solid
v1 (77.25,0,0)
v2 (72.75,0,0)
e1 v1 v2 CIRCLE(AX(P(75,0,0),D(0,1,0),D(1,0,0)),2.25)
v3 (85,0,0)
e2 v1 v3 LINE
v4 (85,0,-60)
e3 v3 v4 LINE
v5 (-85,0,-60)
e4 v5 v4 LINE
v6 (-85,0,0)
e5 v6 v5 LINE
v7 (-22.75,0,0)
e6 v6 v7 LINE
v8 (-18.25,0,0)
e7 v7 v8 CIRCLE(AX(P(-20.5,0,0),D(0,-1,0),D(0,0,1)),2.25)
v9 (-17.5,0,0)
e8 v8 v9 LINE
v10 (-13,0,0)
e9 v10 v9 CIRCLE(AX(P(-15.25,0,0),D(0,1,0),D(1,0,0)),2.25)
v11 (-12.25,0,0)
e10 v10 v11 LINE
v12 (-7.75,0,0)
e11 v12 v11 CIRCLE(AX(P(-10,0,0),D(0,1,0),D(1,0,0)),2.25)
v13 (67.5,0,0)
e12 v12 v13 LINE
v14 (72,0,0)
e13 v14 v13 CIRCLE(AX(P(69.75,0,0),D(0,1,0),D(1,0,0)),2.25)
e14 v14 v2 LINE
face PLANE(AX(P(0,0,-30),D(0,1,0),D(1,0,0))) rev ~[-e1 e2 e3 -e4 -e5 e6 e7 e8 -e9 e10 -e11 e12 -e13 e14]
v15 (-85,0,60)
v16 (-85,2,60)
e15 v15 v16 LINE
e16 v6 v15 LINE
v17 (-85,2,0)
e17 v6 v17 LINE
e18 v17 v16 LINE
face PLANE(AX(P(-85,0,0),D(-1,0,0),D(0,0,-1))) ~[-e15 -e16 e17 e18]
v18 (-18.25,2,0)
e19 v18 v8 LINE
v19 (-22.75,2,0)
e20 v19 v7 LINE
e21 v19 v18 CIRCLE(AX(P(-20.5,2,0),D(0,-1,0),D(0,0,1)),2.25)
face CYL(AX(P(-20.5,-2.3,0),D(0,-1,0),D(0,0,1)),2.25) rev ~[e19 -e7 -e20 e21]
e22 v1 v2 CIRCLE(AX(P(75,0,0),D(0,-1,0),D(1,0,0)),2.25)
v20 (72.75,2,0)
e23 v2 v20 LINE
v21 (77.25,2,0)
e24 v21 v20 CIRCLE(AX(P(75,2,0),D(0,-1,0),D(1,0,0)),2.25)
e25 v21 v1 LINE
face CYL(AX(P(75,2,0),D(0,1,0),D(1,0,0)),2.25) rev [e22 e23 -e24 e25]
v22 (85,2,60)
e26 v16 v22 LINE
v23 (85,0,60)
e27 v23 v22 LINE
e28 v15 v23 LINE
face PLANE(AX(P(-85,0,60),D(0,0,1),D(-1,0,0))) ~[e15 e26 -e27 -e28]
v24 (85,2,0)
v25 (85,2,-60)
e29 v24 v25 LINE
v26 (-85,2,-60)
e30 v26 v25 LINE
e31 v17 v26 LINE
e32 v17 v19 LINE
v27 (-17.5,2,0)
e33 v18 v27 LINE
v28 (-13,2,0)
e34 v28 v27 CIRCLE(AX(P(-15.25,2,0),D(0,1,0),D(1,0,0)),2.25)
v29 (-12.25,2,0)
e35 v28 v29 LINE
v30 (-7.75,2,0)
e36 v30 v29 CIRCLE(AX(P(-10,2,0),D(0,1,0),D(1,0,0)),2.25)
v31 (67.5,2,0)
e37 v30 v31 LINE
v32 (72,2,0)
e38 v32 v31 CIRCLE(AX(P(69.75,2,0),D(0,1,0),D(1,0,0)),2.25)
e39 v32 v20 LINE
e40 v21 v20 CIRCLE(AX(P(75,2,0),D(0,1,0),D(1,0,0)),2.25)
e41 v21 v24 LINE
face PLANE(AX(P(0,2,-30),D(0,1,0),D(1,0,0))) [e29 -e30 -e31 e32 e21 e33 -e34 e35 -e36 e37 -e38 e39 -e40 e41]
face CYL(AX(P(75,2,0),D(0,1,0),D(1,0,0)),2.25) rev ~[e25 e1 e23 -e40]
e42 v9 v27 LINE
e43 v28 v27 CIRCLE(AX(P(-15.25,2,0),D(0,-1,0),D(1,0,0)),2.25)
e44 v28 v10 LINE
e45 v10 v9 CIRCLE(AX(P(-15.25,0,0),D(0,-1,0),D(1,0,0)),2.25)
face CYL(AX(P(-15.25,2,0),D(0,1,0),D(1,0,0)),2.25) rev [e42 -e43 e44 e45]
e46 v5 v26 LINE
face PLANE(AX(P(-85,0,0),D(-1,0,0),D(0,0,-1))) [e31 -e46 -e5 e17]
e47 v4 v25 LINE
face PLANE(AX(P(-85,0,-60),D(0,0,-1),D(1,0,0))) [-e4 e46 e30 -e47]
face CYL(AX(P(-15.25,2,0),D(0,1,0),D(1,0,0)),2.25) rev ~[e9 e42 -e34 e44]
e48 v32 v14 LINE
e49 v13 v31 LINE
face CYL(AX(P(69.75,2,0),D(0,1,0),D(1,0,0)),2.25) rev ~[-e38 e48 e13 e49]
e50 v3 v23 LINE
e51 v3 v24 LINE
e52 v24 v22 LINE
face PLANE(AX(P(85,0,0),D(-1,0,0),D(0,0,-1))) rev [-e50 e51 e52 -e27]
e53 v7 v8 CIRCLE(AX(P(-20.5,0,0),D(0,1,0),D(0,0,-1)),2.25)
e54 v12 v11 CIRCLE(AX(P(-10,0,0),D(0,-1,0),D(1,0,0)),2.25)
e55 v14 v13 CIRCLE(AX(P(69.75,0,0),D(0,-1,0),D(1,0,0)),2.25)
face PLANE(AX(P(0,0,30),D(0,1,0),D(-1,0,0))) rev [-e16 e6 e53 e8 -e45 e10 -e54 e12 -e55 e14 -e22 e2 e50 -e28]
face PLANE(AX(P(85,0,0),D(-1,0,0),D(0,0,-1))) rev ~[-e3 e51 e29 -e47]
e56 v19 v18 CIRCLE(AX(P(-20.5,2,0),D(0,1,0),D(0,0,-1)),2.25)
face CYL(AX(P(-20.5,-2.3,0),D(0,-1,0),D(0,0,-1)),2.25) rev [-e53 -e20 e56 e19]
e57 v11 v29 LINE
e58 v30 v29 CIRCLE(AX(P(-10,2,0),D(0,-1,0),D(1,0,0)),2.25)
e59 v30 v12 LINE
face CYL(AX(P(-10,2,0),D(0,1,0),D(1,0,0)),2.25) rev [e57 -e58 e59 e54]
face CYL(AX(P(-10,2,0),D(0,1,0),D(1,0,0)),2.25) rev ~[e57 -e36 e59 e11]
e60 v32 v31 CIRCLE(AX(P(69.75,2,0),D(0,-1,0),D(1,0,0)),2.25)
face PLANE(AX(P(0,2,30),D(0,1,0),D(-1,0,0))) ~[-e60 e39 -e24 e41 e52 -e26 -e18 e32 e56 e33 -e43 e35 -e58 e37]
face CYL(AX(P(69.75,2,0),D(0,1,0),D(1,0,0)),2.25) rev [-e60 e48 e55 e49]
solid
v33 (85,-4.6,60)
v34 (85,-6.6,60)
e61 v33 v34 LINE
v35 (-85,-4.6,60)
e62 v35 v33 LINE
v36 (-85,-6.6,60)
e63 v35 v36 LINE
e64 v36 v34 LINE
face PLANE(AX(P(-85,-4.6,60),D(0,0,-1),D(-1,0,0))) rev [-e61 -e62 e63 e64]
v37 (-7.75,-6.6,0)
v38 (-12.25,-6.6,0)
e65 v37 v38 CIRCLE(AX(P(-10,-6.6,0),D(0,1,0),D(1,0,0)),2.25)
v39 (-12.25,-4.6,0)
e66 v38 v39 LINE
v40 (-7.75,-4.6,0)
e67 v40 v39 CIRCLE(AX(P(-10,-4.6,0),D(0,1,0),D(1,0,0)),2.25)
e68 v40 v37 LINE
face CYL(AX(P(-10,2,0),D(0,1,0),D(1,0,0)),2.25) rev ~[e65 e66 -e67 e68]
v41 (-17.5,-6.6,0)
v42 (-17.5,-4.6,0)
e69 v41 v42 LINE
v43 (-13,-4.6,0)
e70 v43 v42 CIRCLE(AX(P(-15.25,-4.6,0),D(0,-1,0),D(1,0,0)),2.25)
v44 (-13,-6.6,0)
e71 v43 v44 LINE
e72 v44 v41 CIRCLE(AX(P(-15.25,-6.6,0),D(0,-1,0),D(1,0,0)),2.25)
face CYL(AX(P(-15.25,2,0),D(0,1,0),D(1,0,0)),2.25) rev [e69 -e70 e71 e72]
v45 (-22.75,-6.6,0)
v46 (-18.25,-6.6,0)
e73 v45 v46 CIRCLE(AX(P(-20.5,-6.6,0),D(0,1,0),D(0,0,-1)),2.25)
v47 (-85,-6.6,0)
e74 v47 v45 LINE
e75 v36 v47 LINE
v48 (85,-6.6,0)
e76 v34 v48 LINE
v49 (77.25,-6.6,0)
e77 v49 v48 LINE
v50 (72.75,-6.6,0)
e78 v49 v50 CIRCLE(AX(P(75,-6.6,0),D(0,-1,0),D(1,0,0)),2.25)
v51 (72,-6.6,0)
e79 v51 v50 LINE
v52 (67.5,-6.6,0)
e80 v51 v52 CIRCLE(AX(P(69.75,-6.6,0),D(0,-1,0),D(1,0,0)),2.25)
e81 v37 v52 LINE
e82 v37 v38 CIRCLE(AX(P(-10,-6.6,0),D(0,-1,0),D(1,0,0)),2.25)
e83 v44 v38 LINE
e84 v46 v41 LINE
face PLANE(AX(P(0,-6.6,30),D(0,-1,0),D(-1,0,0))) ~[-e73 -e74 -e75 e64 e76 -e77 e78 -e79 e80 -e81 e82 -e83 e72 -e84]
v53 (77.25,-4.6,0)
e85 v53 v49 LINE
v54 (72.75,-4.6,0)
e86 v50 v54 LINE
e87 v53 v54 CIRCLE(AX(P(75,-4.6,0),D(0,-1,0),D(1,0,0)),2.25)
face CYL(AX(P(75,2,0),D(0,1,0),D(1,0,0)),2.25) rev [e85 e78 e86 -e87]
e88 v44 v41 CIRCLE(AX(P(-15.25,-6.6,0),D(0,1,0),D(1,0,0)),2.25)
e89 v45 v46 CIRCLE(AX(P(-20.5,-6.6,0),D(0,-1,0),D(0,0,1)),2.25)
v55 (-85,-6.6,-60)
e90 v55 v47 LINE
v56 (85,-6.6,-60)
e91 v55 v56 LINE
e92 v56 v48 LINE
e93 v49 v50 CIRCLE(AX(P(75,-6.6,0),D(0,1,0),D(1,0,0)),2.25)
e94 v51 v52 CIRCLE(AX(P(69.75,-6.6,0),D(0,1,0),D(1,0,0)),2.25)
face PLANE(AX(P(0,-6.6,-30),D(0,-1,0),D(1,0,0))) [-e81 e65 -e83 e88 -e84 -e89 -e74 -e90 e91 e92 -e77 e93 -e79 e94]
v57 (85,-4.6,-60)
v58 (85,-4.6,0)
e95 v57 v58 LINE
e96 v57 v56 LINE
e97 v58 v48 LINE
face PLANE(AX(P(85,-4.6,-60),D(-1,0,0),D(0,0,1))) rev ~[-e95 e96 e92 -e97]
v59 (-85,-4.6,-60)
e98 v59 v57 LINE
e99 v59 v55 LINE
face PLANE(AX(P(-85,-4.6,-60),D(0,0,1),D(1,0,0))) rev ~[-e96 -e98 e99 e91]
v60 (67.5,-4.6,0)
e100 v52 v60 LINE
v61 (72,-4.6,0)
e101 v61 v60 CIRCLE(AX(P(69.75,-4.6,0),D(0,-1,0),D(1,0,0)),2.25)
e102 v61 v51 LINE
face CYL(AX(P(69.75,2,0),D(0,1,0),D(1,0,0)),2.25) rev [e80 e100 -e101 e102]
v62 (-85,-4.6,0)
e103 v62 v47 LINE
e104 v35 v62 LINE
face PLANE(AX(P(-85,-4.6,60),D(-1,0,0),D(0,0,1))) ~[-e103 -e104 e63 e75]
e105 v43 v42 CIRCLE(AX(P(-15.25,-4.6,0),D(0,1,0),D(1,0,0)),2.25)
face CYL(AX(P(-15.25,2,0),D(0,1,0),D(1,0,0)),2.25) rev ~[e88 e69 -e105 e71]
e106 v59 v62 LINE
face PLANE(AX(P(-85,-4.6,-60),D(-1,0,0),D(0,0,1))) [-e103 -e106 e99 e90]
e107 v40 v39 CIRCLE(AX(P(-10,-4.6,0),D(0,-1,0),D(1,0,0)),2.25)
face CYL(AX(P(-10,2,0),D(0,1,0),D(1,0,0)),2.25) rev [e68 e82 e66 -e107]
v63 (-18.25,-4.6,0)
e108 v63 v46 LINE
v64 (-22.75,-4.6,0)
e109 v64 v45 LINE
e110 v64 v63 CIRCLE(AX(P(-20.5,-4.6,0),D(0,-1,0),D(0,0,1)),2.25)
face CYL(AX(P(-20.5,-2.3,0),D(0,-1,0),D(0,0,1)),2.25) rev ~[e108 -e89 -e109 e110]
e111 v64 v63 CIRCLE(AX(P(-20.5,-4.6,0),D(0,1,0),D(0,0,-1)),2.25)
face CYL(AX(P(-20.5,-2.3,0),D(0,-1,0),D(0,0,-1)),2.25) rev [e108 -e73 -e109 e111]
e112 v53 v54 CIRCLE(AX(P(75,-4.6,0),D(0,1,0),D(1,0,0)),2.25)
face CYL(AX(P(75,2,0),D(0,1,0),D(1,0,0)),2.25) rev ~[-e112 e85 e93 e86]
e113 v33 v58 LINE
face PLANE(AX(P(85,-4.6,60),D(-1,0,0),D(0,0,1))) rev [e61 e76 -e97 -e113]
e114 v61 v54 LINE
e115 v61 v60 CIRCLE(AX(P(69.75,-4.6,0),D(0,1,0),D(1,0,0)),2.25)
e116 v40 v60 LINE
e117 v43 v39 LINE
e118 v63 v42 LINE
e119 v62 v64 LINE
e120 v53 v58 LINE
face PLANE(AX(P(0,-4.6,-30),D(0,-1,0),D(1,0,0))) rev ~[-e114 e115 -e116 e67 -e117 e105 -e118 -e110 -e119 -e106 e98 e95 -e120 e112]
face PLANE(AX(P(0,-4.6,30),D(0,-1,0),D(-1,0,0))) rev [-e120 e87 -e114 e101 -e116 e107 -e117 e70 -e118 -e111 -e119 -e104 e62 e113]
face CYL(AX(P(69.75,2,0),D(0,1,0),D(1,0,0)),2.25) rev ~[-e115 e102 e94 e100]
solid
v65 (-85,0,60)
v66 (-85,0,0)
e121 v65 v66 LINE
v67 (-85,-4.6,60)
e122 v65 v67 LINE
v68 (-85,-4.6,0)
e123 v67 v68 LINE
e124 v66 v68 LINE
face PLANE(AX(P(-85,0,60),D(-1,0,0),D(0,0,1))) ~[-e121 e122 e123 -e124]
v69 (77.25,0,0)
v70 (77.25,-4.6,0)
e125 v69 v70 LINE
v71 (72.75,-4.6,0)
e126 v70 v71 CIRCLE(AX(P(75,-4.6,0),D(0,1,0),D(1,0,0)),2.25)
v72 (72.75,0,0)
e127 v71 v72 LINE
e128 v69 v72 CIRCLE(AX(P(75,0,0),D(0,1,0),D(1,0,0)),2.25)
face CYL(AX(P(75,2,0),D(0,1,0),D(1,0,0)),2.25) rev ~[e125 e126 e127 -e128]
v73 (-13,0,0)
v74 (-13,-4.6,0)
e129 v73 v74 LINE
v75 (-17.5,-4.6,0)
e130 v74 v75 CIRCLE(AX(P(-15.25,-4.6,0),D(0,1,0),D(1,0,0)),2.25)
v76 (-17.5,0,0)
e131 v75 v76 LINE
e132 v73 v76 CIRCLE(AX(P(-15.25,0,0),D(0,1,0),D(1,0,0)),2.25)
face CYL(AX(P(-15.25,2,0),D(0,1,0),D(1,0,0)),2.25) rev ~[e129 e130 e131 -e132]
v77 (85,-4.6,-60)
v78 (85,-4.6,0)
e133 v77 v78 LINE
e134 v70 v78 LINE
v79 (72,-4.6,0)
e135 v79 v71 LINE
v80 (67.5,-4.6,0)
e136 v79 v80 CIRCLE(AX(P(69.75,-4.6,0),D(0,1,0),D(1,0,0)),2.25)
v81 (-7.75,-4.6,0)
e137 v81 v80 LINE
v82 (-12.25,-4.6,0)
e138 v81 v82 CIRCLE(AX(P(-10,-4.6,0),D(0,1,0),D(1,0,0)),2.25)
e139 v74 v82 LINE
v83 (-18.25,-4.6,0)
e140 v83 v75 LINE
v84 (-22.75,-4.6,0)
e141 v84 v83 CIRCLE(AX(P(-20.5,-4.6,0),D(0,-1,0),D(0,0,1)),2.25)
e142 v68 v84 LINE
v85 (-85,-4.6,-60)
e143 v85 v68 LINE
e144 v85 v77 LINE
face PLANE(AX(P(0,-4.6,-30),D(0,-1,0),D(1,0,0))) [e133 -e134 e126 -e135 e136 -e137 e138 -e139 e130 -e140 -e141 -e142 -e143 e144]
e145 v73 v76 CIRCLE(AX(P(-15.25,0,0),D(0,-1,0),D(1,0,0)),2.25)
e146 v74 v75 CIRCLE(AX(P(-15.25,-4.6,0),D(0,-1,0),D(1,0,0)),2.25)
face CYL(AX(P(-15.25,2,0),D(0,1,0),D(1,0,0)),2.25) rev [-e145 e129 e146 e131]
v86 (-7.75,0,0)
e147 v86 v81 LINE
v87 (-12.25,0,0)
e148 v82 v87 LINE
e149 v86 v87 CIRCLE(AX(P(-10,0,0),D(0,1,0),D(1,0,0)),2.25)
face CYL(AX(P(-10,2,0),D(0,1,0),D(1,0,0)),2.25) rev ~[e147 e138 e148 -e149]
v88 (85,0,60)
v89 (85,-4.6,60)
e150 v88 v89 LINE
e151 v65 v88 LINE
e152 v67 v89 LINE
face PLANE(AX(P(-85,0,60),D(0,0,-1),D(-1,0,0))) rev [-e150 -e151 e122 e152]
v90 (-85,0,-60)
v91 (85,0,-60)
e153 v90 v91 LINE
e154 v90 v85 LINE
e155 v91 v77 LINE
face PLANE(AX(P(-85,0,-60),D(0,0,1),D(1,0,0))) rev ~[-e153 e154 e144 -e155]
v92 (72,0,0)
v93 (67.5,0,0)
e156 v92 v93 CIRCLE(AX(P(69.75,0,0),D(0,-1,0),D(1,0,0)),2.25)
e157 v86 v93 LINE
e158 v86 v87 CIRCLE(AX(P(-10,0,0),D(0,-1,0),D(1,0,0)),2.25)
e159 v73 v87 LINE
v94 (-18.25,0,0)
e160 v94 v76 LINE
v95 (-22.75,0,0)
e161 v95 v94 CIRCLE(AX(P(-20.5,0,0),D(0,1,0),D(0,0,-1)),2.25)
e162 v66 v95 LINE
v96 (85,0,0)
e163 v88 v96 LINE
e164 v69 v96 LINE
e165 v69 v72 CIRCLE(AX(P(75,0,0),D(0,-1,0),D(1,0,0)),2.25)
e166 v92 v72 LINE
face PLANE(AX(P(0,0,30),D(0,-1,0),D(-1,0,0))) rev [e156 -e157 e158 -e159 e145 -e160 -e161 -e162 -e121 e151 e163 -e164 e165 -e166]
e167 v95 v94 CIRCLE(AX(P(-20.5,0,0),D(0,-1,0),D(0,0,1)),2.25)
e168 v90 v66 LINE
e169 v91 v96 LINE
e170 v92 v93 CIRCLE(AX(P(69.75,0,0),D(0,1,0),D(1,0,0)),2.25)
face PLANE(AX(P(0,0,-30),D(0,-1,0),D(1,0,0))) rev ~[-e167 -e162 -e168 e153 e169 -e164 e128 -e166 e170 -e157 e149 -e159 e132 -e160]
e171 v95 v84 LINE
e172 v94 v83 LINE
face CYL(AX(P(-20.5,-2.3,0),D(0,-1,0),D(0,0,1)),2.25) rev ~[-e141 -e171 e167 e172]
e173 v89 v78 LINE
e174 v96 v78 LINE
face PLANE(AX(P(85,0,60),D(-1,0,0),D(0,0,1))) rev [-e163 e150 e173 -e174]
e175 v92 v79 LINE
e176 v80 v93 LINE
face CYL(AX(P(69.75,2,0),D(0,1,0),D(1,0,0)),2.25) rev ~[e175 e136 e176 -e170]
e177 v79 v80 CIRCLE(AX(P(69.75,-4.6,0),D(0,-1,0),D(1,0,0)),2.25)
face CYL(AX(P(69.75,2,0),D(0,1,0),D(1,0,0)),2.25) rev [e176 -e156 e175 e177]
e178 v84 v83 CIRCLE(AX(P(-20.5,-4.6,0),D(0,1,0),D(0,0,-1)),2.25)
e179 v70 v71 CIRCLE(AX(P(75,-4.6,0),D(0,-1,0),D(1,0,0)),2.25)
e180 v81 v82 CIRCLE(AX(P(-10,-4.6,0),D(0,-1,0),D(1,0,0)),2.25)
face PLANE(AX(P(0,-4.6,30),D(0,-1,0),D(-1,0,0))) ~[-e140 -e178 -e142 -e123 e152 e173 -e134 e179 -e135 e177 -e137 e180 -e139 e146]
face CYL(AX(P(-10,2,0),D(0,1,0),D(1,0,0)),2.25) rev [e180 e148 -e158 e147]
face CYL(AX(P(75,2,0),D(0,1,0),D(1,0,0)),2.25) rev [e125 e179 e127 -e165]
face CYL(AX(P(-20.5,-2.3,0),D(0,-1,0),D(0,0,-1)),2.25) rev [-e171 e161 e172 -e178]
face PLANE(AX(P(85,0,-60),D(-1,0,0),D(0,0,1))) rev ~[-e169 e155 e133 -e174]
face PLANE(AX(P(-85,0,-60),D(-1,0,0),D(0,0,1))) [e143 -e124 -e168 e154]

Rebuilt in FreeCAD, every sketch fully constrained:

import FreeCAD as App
import Part
import Sketcher

V = App.Vector

doc = App.newDocument("Part")
body = doc.addObject("PartDesign::Body", "Body")

sketch1 = body.newObject("Sketcher::SketchObject", "Sketch")
sketch1.AttachmentSupport = (doc.getObject("XZ_Plane"), [""])
sketch1.MapMode = "FlatFace"
sketch1.addGeometry([
    Part.LineSegment(V(-85, -60, 0), V(-85, 0, 0)),
    Part.LineSegment(V(-85, 0, 0), V(85, 0, 0)),
    Part.LineSegment(V(85, 0, 0), V(85, -60, 0)),
    Part.LineSegment(V(85, -60, 0), V(-85, -60, 0)),
], False)
sketch1.addConstraint([
    Sketcher.Constraint("Coincident", 0, 2, 1, 1),
    Sketcher.Constraint("Coincident", 1, 2, 2, 1),
    Sketcher.Constraint("Coincident", 2, 2, 3, 1),
    Sketcher.Constraint("Coincident", 3, 2, 0, 1),
    Sketcher.Constraint("Vertical", 0),
    Sketcher.Constraint("Horizontal", 1),
    Sketcher.Constraint("Vertical", 2),
    Sketcher.Constraint("Horizontal", 3),
    Sketcher.Constraint("Symmetric", 0, 2, 1, 2, -1, 1),
    Sketcher.Constraint("DistanceX", 1, 1, 1, 2, 170.0),
    Sketcher.Constraint("DistanceY", 0, 1, 0, 2, 60.0),
])
pad1 = body.newObject("PartDesign::Pad", "Pad")
pad1.Profile = sketch1
pad1.Length = 2
pad1.Reversed = True
body2 = doc.addObject("PartDesign::Body", "Body001")

sketch2 = body2.newObject("Sketcher::SketchObject", "Sketch001")
sketch2.AttachmentSupport = (doc.getObject("XZ_Plane001"), [""])
sketch2.MapMode = "FlatFace"
sketch2.addGeometry([
    Part.LineSegment(V(-85, 0, 0), V(-85, -60, 0)),
    Part.LineSegment(V(-85, -60, 0), V(85, -60, 0)),
    Part.LineSegment(V(85, -60, 0), V(85, 0, 0)),
    Part.LineSegment(V(85, 0, 0), V(-85, 0, 0)),
], False)
sketch2.addConstraint([
    Sketcher.Constraint("Coincident", 0, 2, 1, 1),
    Sketcher.Constraint("Coincident", 1, 2, 2, 1),
    Sketcher.Constraint("Coincident", 2, 2, 3, 1),
    Sketcher.Constraint("Coincident", 3, 2, 0, 1),
    Sketcher.Constraint("Vertical", 0),
    Sketcher.Constraint("Horizontal", 1),
    Sketcher.Constraint("Vertical", 2),
    Sketcher.Constraint("Horizontal", 3),
    Sketcher.Constraint("Symmetric", 2, 2, 3, 2, -1, 1),
    Sketcher.Constraint("DistanceX", 1, 1, 1, 2, 170.0),
    Sketcher.Constraint("DistanceY", 0, 2, 0, 1, 60.0),
])
pad2 = body2.newObject("PartDesign::Pad", "Pad001")
pad2.Profile = sketch2
pad2.Length = 4.6
body3 = doc.addObject("PartDesign::Body", "Body002")

sketch3 = body3.newObject("Sketcher::SketchObject", "Sketch002")
sketch3.AttachmentSupport = (doc.getObject("XZ_Plane002"), [""])
sketch3.MapMode = "FlatFace"
sketch3.AttachmentOffset = App.Placement(V(0, 0, 4.6), App.Rotation())
sketch3.addGeometry([
    Part.LineSegment(V(-85, 0, 0), V(-85, -60, 0)),
    Part.LineSegment(V(-85, -60, 0), V(85, -60, 0)),
    Part.LineSegment(V(85, -60, 0), V(85, 0, 0)),
    Part.LineSegment(V(85, 0, 0), V(-85, 0, 0)),
], False)
sketch3.addConstraint([
    Sketcher.Constraint("Coincident", 0, 2, 1, 1),
    Sketcher.Constraint("Coincident", 1, 2, 2, 1),
    Sketcher.Constraint("Coincident", 2, 2, 3, 1),
    Sketcher.Constraint("Coincident", 3, 2, 0, 1),
    Sketcher.Constraint("Vertical", 0),
    Sketcher.Constraint("Horizontal", 1),
    Sketcher.Constraint("Vertical", 2),
    Sketcher.Constraint("Horizontal", 3),
    Sketcher.Constraint("Symmetric", 2, 2, 3, 2, -1, 1),
    Sketcher.Constraint("DistanceX", 1, 1, 1, 2, 170.0),
    Sketcher.Constraint("DistanceY", 0, 2, 0, 1, 60.0),
])
pad3 = body3.newObject("PartDesign::Pad", "Pad002")
pad3.Profile = sketch3
pad3.Length = 2
body4 = doc.addObject("PartDesign::Body", "Body003")
body4.AllowCompound = True

sketch4 = body4.newObject("Sketcher::SketchObject", "Sketch003")
sketch4.AttachmentSupport = (doc.getObject("XZ_Plane003"), [""])
sketch4.MapMode = "FlatFace"
sketch4.AttachmentOffset = App.Placement(V(0, 0, -2), App.Rotation())
sketch4.addGeometry([
    Part.Circle(V(75, 0, 0), V(0, 0, 1), 2.25),
    Part.Circle(V(-10, 0, 0), V(0, 0, 1), 2.25),
    Part.Circle(V(69.75, 0, 0), V(0, 0, 1), 2.25),
    Part.Circle(V(-15.25, 0, 0), V(0, 0, 1), 2.25),
], False)
sketch4.addConstraint([
    Sketcher.Constraint("Equal", 0, 1),
    Sketcher.Constraint("Equal", 1, 2),
    Sketcher.Constraint("Equal", 2, 3),
    Sketcher.Constraint("PointOnObject", 0, 3, -1),
    Sketcher.Constraint("PointOnObject", 1, 3, -1),
    Sketcher.Constraint("PointOnObject", 2, 3, -1),
    Sketcher.Constraint("PointOnObject", 3, 3, -1),
    Sketcher.Constraint("Diameter", 0, 4.5),
    Sketcher.Constraint("DistanceX", -1, 1, 0, 3, 75.0),
    Sketcher.Constraint("DistanceX", 1, 3, -1, 1, 10.0),
    Sketcher.Constraint("DistanceX", 3, 3, 2, 3, 85.0),
    Sketcher.Constraint("DistanceX", -1, 1, 2, 3, 69.75),
])
pad4 = body4.newObject("PartDesign::Pad", "Pad003")
pad4.Profile = sketch4
pad4.Length = 105.398084
doc.recompute()

body5 = doc.addObject("PartDesign::Body", "Body004")
body5.BaseFeature = body4
boolean = body.newObject("PartDesign::Boolean", "Boolean")
boolean.Type = "Cut"
boolean.addObjects([body5])
doc.recompute()

body6 = doc.addObject("PartDesign::Body", "Body005")
body6.BaseFeature = body4
boolean2 = body2.newObject("PartDesign::Boolean", "Boolean001")
boolean2.Type = "Cut"
boolean2.addObjects([body6])
doc.recompute()

boolean3 = body3.newObject("PartDesign::Boolean", "Boolean002")
boolean3.Type = "Cut"
boolean3.addObjects([body4])
body7 = doc.addObject("PartDesign::Body", "Body006")

sketch5 = body7.newObject("Sketcher::SketchObject", "Sketch004")
sketch5.AttachmentSupport = (doc.getObject("YZ_Plane006"), [""])
sketch5.MapMode = "FlatFace"
sketch5.AttachmentOffset = App.Placement(V(0, 0, -20.5), App.Rotation())
sketch5.addGeometry([
    Part.LineSegment(V(-6.6, 0, 0), V(2, 0, 0)),
    Part.LineSegment(V(2, 0, 0), V(2, 2.25, 0)),
    Part.LineSegment(V(2, 2.25, 0), V(-6.6, 2.25, 0)),
    Part.LineSegment(V(-6.6, 2.25, 0), V(-6.6, 0, 0)),
], False)
sketch5.addConstraint([
    Sketcher.Constraint("Coincident", 0, 2, 1, 1),
    Sketcher.Constraint("Coincident", 1, 2, 2, 1),
    Sketcher.Constraint("Coincident", 2, 2, 3, 1),
    Sketcher.Constraint("Coincident", 3, 2, 0, 1),
    Sketcher.Constraint("Horizontal", 0),
    Sketcher.Constraint("Vertical", 1),
    Sketcher.Constraint("Horizontal", 2),
    Sketcher.Constraint("Vertical", 3),
    Sketcher.Constraint("PointOnObject", 0, 2, -1),
    Sketcher.Constraint("DistanceX", 0, 1, 0, 2, 8.6),
    Sketcher.Constraint("DistanceX", -1, 1, 0, 2, 2.0),
    Sketcher.Constraint("DistanceY", 1, 1, 1, 2, 2.25),
])
revolution = body7.newObject("PartDesign::Revolution", "Revolution")
revolution.Profile = sketch5
revolution.ReferenceAxis = (sketch5, ["H_Axis"])
revolution.Angle = 360
doc.recompute()

body8 = doc.addObject("PartDesign::Body", "Body007")
body8.BaseFeature = body7
boolean4 = body.newObject("PartDesign::Boolean", "Boolean003")
boolean4.Type = "Cut"
boolean4.addObjects([body8])
doc.recompute()

body9 = doc.addObject("PartDesign::Body", "Body008")
body9.BaseFeature = body7
boolean5 = body2.newObject("PartDesign::Boolean", "Boolean004")
boolean5.Type = "Cut"
boolean5.addObjects([body9])
doc.recompute()

boolean6 = body3.newObject("PartDesign::Boolean", "Boolean005")
boolean6.Type = "Cut"
boolean6.addObjects([body7])
body10 = doc.addObject("PartDesign::Body", "Body009")
doc.recompute()

body10.BaseFeature = body
doc.recompute()

mirroring = doc.addObject("Part::Mirroring", "Mirroring")
mirroring.Source = body
mirroring.Base = V(85, -4.6, 0)
mirroring.Normal = V(0, 0, -1)
body11 = doc.addObject("PartDesign::Body", "Body010")
body11.BaseFeature = mirroring
boolean7 = body10.newObject("PartDesign::Boolean", "Boolean006")
boolean7.Type = "Fuse"
boolean7.addObjects([body11])
doc.recompute()
body12 = doc.addObject("PartDesign::Body", "Body011")
doc.recompute()

body12.BaseFeature = body2
doc.recompute()

mirroring2 = doc.addObject("Part::Mirroring", "Mirroring001")
mirroring2.Source = body2
mirroring2.Base = V(85, -4.6, 0)
mirroring2.Normal = V(0, 0, -1)
body13 = doc.addObject("PartDesign::Body", "Body012")
body13.BaseFeature = mirroring2
boolean8 = body12.newObject("PartDesign::Boolean", "Boolean007")
boolean8.Type = "Fuse"
boolean8.addObjects([body13])
doc.recompute()
body14 = doc.addObject("PartDesign::Body", "Body013")
doc.recompute()

body14.BaseFeature = body3
doc.recompute()

mirroring3 = doc.addObject("Part::Mirroring", "Mirroring002")
mirroring3.Source = body3
mirroring3.Base = V(85, -4.6, 0)
mirroring3.Normal = V(0, 0, -1)
body15 = doc.addObject("PartDesign::Body", "Body014")
body15.BaseFeature = mirroring3
boolean9 = body14.newObject("PartDesign::Boolean", "Boolean008")
boolean9.Type = "Fuse"
boolean9.addObjects([body15])
doc.recompute()
mirroring.Visibility = False
mirroring2.Visibility = False
mirroring3.Visibility = False

doc.recompute()
